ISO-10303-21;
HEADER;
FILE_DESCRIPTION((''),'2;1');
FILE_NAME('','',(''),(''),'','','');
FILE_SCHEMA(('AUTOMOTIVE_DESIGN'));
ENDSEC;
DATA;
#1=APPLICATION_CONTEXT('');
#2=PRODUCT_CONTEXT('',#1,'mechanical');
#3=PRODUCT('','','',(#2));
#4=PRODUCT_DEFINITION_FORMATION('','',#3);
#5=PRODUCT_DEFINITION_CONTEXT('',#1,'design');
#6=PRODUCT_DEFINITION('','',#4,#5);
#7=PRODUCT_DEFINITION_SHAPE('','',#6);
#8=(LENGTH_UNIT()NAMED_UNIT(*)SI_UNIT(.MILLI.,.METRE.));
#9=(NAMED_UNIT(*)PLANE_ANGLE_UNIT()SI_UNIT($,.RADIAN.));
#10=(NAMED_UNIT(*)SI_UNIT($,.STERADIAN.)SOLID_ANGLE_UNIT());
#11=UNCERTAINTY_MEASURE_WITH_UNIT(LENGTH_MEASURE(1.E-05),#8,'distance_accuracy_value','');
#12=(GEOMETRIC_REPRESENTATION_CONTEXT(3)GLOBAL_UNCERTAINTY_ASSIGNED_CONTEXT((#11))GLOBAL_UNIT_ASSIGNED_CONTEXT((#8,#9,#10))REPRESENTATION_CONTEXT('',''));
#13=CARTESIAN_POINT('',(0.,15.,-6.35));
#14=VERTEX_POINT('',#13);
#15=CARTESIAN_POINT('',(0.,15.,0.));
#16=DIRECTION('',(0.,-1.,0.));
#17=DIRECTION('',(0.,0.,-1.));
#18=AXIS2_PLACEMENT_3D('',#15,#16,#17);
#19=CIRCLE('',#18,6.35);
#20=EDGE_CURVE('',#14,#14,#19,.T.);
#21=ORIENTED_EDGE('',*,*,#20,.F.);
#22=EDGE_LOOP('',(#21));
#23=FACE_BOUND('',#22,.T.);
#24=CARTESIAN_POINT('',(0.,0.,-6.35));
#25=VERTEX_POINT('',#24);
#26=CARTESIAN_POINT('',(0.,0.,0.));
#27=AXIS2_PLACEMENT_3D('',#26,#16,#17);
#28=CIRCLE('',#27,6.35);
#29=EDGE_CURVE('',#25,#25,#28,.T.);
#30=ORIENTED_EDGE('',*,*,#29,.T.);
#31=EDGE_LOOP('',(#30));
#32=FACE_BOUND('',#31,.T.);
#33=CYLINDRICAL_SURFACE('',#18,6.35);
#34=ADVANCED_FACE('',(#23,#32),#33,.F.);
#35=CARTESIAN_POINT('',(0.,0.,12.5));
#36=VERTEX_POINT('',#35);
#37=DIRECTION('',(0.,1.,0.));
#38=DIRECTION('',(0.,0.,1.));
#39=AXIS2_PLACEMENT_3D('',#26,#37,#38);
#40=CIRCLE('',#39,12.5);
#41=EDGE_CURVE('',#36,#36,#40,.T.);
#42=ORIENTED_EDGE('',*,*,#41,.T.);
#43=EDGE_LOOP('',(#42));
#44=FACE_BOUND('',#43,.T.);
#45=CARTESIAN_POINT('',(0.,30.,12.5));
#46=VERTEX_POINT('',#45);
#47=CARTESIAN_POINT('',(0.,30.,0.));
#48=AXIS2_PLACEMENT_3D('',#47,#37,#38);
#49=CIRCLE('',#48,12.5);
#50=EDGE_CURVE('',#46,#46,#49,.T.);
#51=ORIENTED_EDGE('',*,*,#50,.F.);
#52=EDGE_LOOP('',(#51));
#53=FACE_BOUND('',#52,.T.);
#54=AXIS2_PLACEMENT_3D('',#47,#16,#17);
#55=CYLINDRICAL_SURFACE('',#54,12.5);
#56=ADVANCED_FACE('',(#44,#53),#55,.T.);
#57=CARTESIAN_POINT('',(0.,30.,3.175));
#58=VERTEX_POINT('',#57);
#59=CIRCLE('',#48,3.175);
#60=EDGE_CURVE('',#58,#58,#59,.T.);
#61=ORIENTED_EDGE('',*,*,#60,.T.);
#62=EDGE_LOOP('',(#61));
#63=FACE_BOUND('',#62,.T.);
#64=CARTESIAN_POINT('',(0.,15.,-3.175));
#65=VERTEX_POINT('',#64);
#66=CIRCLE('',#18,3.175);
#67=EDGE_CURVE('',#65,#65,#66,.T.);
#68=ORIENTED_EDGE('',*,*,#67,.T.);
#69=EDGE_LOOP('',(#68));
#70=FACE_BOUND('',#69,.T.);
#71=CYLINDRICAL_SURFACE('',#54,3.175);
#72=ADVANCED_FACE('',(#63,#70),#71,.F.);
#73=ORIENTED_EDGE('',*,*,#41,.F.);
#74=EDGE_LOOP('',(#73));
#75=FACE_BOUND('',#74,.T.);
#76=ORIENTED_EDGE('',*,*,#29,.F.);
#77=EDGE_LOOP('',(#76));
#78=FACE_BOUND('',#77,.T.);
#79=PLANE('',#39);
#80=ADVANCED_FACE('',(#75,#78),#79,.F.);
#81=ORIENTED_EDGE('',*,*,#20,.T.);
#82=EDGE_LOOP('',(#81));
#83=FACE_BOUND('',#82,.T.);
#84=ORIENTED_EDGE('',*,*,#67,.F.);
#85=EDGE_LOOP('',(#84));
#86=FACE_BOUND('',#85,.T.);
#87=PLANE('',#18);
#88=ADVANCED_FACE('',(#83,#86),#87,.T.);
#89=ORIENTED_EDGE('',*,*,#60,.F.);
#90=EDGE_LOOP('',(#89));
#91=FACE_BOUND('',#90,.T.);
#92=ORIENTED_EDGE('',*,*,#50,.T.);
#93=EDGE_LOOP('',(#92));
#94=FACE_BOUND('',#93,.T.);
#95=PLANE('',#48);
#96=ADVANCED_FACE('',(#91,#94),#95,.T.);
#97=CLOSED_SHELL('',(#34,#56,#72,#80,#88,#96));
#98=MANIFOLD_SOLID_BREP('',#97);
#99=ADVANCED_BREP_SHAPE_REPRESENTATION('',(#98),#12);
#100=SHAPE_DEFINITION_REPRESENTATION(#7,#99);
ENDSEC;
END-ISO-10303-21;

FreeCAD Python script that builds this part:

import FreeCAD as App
import Part
import Sketcher
from FreeCAD import Vector
Q = App.Units.Quantity

doc = App.newDocument("Part")
body = doc.addObject("PartDesign::Body", "Body")

# Sketch on XZ plane
sketch1 = body.newObject("Sketcher::SketchObject", "Sketch")
sketch1.AttachmentSupport = (doc.getObject("XZ_Plane"), [""])
sketch1.MapMode = "FlatFace"
sketch1.addGeometry([
    Part.Circle(Vector(0, 0, 0), Vector(0, 0, 1), 12.5),
    Part.Circle(Vector(0, 0, 0), Vector(0, 0, 1), 3.2),
], False)
sketch1.addConstraint([
    Sketcher.Constraint("Coincident", 0, 3, -1, 1),
    Sketcher.Constraint("Coincident", 1, 3, -1, 1),
    Sketcher.Constraint("Diameter", 0, Q("25 mm")),
    Sketcher.Constraint("Diameter", 1, Q("6.35 mm")),
])
pad1 = body.newObject("PartDesign::Pad", "Pad")
pad1.Profile = sketch1
pad1.Length = 30
pad1.Reversed = True

# Sketch on XZ plane
sketch2 = body.newObject("Sketcher::SketchObject", "Sketch001")
sketch2.AttachmentSupport = (doc.getObject("XZ_Plane"), [""])
sketch2.MapMode = "FlatFace"
sketch2.addGeometry(Part.Circle(Vector(0, 0, 0), Vector(0, 0, 1), 6), False)
sketch2.addConstraint([
    Sketcher.Constraint("Coincident", 0, 3, -1, 1),
    Sketcher.Constraint("Diameter", 0, Q("12.7 mm")),
])
pocket1 = body.newObject("PartDesign::Pocket", "Pocket")
pocket1.Profile = sketch2
pocket1.Length = 15

doc.recompute()
